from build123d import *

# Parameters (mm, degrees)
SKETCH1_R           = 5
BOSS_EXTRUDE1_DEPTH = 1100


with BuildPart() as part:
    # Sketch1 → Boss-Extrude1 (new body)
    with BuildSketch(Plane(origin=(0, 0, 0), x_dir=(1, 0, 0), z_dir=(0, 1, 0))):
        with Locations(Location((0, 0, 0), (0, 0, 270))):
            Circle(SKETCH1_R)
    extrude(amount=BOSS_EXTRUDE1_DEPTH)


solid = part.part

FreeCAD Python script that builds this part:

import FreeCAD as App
import Part
import Sketcher
from FreeCAD import Vector
Q = App.Units.Quantity

doc = App.newDocument("Part")
body = doc.addObject("PartDesign::Body", "Body")

sketch1 = body.newObject("Sketcher::SketchObject", "Sketch")
sketch1.AttachmentSupport = (doc.getObject("XZ_Plane"), [""])
sketch1.MapMode = "FlatFace"
sketch1.addGeometry(Part.Circle(Vector(0, 0, 0), Vector(0, 0, 1), 5), False)
sketch1.addConstraint(Sketcher.Constraint("Coincident", 0, 3, -1, 1))
sketch1.addConstraint(Sketcher.Constraint("Diameter", 0, Q("10 mm")))
pad1 = body.newObject("PartDesign::Pad", "Pad")
pad1.Profile = sketch1
pad1.Length = 1100
pad1.Reversed = True

doc.recompute()
